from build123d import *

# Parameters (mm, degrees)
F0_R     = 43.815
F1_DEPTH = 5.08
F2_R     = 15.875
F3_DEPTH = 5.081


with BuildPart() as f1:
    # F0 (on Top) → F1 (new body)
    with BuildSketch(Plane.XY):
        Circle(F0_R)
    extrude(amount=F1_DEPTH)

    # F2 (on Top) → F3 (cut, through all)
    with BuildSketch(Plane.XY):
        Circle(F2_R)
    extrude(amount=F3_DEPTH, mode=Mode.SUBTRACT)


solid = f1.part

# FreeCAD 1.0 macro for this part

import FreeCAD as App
import Part
import Sketcher

V = App.Vector
Q = App.Units.Quantity

doc = App.newDocument("Part")
body = doc.addObject("PartDesign::Body", "Body")

# Sketch on XY plane
sketch1 = body.newObject("Sketcher::SketchObject", "Sketch")
sketch1.AttachmentSupport = (doc.getObject("XY_Plane"), [""])
sketch1.MapMode = "FlatFace"
sketch1.addGeometry(Part.Circle(V(0, 0, 0), V(0, 0, 1), 44), False)
sketch1.addConstraint(Sketcher.Constraint("Coincident", 0, 3, -1, 1))
sketch1.addConstraint(Sketcher.Constraint("Diameter", 0, Q("3.45 in")))
pad1 = body.newObject("PartDesign::Pad", "Pad")
pad1.Profile = sketch1
pad1.Length = Q("0.2 in")

# Sketch on XY plane
sketch2 = body.newObject("Sketcher::SketchObject", "Sketch001")
sketch2.AttachmentSupport = (doc.getObject("XY_Plane"), [""])
sketch2.MapMode = "FlatFace"
sketch2.addGeometry(Part.Circle(V(0, 0, 0), V(0, 0, 1), 16), False)
sketch2.addConstraint(Sketcher.Constraint("Coincident", 0, 3, -1, 1))
sketch2.addConstraint(Sketcher.Constraint("Diameter", 0, Q("1.25 in")))
pocket1 = body.newObject("PartDesign::Pocket", "Pocket")
pocket1.Profile = sketch2
pocket1.Type = "ThroughAll"
pocket1.Reversed = True

doc.recompute()
